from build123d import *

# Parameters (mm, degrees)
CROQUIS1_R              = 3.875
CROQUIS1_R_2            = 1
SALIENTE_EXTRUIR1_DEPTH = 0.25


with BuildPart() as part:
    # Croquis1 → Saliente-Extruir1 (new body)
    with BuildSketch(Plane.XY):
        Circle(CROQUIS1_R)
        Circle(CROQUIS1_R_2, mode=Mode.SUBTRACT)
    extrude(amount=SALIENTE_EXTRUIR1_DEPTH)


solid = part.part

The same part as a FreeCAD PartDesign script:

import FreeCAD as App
import Part
import Sketcher

V = App.Vector
Q = App.Units.Quantity

doc = App.newDocument("Part")
body = doc.addObject("PartDesign::Body", "Body")

# Sketch on XY plane
sketch1 = doc.addObject("Sketcher::SketchObject", "Sketch")
body.addObject(sketch1)
sketch1.AttachmentSupport = (doc.XY_Plane, [""])
sketch1.MapMode = "FlatFace"
sketch1.addGeometry([
    Part.Circle(V(0, 0, 0), V(0, 0, 1), 3.9),
    Part.Circle(V(0, 0, 0), V(0, 0, 1), 1),
], False)
sketch1.addConstraint([
    Sketcher.Constraint("Coincident", 0, 3, -1, 1),
    Sketcher.Constraint("Coincident", 1, 3, -1, 1),
    Sketcher.Constraint("Diameter", 1, Q("2 mm")),
    Sketcher.Constraint("Diameter", 0, Q("7.75 mm")),
])
pad1 = doc.addObject("PartDesign::Pad", "Pad")
body.addObject(pad1)
pad1.Profile = sketch1
pad1.Length = 0.25

doc.recompute()
